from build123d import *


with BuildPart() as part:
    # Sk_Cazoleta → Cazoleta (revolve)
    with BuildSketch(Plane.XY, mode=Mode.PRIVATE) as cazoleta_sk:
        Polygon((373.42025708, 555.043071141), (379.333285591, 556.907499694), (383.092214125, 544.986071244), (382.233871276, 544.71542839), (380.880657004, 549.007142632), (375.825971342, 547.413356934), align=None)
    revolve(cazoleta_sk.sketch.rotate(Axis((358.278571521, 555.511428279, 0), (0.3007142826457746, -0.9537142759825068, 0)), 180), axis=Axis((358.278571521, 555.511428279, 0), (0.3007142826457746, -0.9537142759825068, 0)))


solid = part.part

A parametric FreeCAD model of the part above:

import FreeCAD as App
import Part
import Sketcher

V = App.Vector


def add_polygon(sketch, points):
    """Adds a closed chain of lines whose ends are joined by coincident constraints."""
    first, n = sketch.GeometryCount, len(points)
    for a, b in zip(points, points[1:] + points[:1]):
        sketch.addGeometry(Part.LineSegment(App.Vector(*a, 0), App.Vector(*b, 0)), False)
    for i in range(n):
        sketch.addConstraint(Sketcher.Constraint("Coincident", first + i, 2, first + (i + 1) % n, 1))

doc = App.newDocument("Part")
params = doc.addObject("Spreadsheet::Sheet", "Params")
for row, (alias, value) in enumerate([
    ("sketch1_length", "8 mm"),
    ("sketch1_length2", "6.2 mm"),
    ("sketch1_length3", "5.3 mm"),
    ("sketch1_length4", "4.5 mm"),
    ("revolution_angle", "360 deg"),
], start=1):
    params.set(f"A{row}", alias)
    params.set(f"B{row}", "=" + value)
    params.setAlias(f"B{row}", alias)

body = doc.addObject("PartDesign::Body", "Body")

# Sketch on XY plane
sketch1 = body.newObject("Sketcher::SketchObject", "Sketch")
sketch1.AttachmentSupport = (doc.getObject("XY_Plane"), [""])
sketch1.MapMode = "FlatFace"
add_polygon(sketch1, [(379.3, 556.9), (373.4, 555), (375.8, 547.4), (380.9, 549), (382.2, 544.7), (383.1, 545)])  # lines 0-5
sketch1.addGeometry(Part.LineSegment(V(359.8, 550.7, 0), V(363.5, 538.8, 0)), True)  # axis
sketch1.addConstraint(Sketcher.Constraint("Perpendicular", 0, 1))
sketch1.addConstraint(Sketcher.Constraint("Perpendicular", 1, 2))
sketch1.addConstraint(Sketcher.Constraint("Perpendicular", 2, 3))
sketch1.addConstraint(Sketcher.Constraint("Perpendicular", 3, 4))
sketch1.addConstraint(Sketcher.Constraint("Perpendicular", 4, 5))
sketch1.addConstraint(Sketcher.Constraint("Parallel", 5, 6))
sketch1.addConstraint(Sketcher.Constraint("Equal", 5, 6))
sketch1.addConstraint(Sketcher.Constraint("Distance", 1, 8.0))
sketch1.addConstraint(Sketcher.Constraint("Distance", 0, 6.2))
sketch1.addConstraint(Sketcher.Constraint("Distance", 2, 5.3))
sketch1.addConstraint(Sketcher.Constraint("Distance", 3, 4.5))
sketch1.addConstraint(Sketcher.Constraint("DistanceY", 4, 2, 0, 2, 10.057))
sketch1.addConstraint(Sketcher.Constraint("DistanceY", 6, 2, 3, 2, 5.894))
sketch1.addConstraint(Sketcher.Constraint("DistanceY", -1, 1, 5, 2, 556.9075))
sketch1.addConstraint(Sketcher.Constraint("DistanceX", 6, 2, 1, 2, 12.2849))
sketch1.addConstraint(Sketcher.Constraint("DistanceX", -1, 1, 1, 2, 375.825971))
sketch1.setExpression("Constraints[13]", "Params.sketch1_length")
sketch1.setExpression("Constraints[14]", "Params.sketch1_length2")
sketch1.setExpression("Constraints[15]", "Params.sketch1_length3")
sketch1.setExpression("Constraints[16]", "Params.sketch1_length4")
revolution = body.newObject("PartDesign::Revolution", "Revolution")
revolution.Profile = sketch1
revolution.ReferenceAxis = (sketch1, ["Axis0"])
revolution.setExpression("Angle", "Params.revolution_angle")

doc.recompute()
